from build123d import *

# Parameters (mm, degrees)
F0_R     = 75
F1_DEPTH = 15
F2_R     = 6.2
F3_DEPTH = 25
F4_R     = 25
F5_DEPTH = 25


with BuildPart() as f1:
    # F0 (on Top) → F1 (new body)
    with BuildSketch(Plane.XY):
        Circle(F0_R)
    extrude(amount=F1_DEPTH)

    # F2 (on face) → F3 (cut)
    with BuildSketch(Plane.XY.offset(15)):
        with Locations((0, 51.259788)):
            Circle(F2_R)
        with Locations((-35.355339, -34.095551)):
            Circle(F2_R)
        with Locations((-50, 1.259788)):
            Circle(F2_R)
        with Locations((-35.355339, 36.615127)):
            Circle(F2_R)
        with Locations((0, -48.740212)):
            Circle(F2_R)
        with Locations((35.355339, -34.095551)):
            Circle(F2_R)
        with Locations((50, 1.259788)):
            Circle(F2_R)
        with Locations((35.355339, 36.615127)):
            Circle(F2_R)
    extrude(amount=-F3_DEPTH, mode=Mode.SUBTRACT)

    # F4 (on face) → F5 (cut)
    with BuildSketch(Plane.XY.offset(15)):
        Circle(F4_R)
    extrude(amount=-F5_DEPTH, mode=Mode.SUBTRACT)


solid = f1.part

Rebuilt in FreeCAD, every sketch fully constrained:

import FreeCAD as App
import Part
import Sketcher

doc = App.newDocument("Part")
body = doc.addObject("PartDesign::Body", "Body")

# Sketch on XY plane
sketch1 = body.newObject("Sketcher::SketchObject", "Sketch")
sketch1.AttachmentSupport = (doc.getObject("XY_Plane"), [""])
sketch1.MapMode = "FlatFace"
sketch1.addGeometry(Part.Circle(App.Vector(0, 0, 0), App.Vector(0, 0, 1), 75), False)
sketch1.addConstraint([
    Sketcher.Constraint("Coincident", 0, 3, -1, 1),
    Sketcher.Constraint("Diameter", 0, 150.0),
])
pad1 = body.newObject("PartDesign::Pad", "Pad")
pad1.Profile = sketch1
pad1.Length = 15

# Sketch on XY plane
sketch2 = body.newObject("Sketcher::SketchObject", "Sketch001")
sketch2.AttachmentSupport = (doc.getObject("XY_Plane"), [""])
sketch2.MapMode = "FlatFace"
sketch2.AttachmentOffset = App.Placement(App.Vector(0, 0, 15), App.Rotation())
sketch2.addGeometry([
    Part.Circle(App.Vector(0, 51, 0), App.Vector(0, 0, 1), 6),  # 0
    Part.Circle(App.Vector(-35, -34, 0), App.Vector(0, 0, 1), 6),  # 1
    Part.Circle(App.Vector(-50, 1, 0), App.Vector(0, 0, 1), 6),  # 2
    Part.Circle(App.Vector(-35, 37, 0), App.Vector(0, 0, 1), 6),  # 3
    Part.Circle(App.Vector(0, -49, 0), App.Vector(0, 0, 1), 6),  # 4
    Part.Circle(App.Vector(35, -34, 0), App.Vector(0, 0, 1), 6),  # 5
    Part.Circle(App.Vector(50, 1, 0), App.Vector(0, 0, 1), 6),  # 6
    Part.Circle(App.Vector(35, 37, 0), App.Vector(0, 0, 1), 6),  # 7
], False)
sketch2.addConstraint([
    Sketcher.Constraint("Equal", 0, 1),
    Sketcher.Constraint("Equal", 1, 2),
    Sketcher.Constraint("Equal", 2, 3),
    Sketcher.Constraint("Equal", 3, 4),
    Sketcher.Constraint("Equal", 4, 5),
    Sketcher.Constraint("Equal", 5, 6),
    Sketcher.Constraint("Equal", 6, 7),
    Sketcher.Constraint("Symmetric", 1, 3, 5, 3, -2),
    Sketcher.Constraint("Symmetric", 2, 3, 6, 3, -2),
    Sketcher.Constraint("Symmetric", 3, 3, 7, 3, -2),
    Sketcher.Constraint("PointOnObject", 0, 3, -2),
    Sketcher.Constraint("PointOnObject", 4, 3, -2),
    Sketcher.Constraint("Vertical", 1, 3, 3, 3),
    Sketcher.Constraint("Diameter", 0, 12.4),
    Sketcher.Constraint("DistanceX", 2, 3, -1, 1, 50.0),
    Sketcher.Constraint("DistanceY", 2, 3, 0, 3, 50.0),
    Sketcher.Constraint("DistanceY", 4, 3, 2, 3, 50.0),
    Sketcher.Constraint("DistanceX", 1, 3, -1, 1, 35.355339),
    Sketcher.Constraint("DistanceY", 1, 3, -1, 1, 34.095551),
    Sketcher.Constraint("DistanceY", 1, 3, 0, 3, 85.355339),
    Sketcher.Constraint("DistanceY", 3, 3, 0, 3, 14.644661),
])
pocket1 = body.newObject("PartDesign::Pocket", "Pocket")
pocket1.Profile = sketch2
pocket1.Length = 25

# Sketch on XY plane
sketch3 = body.newObject("Sketcher::SketchObject", "Sketch002")
sketch3.AttachmentSupport = (doc.getObject("XY_Plane"), [""])
sketch3.MapMode = "FlatFace"
sketch3.AttachmentOffset = App.Placement(App.Vector(0, 0, 15), App.Rotation())
sketch3.addGeometry(Part.Circle(App.Vector(0, 0, 0), App.Vector(0, 0, 1), 25), False)
sketch3.addConstraint([
    Sketcher.Constraint("Coincident", 0, 3, -1, 1),
    Sketcher.Constraint("Diameter", 0, 50.0),
])
pocket2 = body.newObject("PartDesign::Pocket", "Pocket001")
pocket2.Profile = sketch3
pocket2.Length = 25

doc.recompute()
